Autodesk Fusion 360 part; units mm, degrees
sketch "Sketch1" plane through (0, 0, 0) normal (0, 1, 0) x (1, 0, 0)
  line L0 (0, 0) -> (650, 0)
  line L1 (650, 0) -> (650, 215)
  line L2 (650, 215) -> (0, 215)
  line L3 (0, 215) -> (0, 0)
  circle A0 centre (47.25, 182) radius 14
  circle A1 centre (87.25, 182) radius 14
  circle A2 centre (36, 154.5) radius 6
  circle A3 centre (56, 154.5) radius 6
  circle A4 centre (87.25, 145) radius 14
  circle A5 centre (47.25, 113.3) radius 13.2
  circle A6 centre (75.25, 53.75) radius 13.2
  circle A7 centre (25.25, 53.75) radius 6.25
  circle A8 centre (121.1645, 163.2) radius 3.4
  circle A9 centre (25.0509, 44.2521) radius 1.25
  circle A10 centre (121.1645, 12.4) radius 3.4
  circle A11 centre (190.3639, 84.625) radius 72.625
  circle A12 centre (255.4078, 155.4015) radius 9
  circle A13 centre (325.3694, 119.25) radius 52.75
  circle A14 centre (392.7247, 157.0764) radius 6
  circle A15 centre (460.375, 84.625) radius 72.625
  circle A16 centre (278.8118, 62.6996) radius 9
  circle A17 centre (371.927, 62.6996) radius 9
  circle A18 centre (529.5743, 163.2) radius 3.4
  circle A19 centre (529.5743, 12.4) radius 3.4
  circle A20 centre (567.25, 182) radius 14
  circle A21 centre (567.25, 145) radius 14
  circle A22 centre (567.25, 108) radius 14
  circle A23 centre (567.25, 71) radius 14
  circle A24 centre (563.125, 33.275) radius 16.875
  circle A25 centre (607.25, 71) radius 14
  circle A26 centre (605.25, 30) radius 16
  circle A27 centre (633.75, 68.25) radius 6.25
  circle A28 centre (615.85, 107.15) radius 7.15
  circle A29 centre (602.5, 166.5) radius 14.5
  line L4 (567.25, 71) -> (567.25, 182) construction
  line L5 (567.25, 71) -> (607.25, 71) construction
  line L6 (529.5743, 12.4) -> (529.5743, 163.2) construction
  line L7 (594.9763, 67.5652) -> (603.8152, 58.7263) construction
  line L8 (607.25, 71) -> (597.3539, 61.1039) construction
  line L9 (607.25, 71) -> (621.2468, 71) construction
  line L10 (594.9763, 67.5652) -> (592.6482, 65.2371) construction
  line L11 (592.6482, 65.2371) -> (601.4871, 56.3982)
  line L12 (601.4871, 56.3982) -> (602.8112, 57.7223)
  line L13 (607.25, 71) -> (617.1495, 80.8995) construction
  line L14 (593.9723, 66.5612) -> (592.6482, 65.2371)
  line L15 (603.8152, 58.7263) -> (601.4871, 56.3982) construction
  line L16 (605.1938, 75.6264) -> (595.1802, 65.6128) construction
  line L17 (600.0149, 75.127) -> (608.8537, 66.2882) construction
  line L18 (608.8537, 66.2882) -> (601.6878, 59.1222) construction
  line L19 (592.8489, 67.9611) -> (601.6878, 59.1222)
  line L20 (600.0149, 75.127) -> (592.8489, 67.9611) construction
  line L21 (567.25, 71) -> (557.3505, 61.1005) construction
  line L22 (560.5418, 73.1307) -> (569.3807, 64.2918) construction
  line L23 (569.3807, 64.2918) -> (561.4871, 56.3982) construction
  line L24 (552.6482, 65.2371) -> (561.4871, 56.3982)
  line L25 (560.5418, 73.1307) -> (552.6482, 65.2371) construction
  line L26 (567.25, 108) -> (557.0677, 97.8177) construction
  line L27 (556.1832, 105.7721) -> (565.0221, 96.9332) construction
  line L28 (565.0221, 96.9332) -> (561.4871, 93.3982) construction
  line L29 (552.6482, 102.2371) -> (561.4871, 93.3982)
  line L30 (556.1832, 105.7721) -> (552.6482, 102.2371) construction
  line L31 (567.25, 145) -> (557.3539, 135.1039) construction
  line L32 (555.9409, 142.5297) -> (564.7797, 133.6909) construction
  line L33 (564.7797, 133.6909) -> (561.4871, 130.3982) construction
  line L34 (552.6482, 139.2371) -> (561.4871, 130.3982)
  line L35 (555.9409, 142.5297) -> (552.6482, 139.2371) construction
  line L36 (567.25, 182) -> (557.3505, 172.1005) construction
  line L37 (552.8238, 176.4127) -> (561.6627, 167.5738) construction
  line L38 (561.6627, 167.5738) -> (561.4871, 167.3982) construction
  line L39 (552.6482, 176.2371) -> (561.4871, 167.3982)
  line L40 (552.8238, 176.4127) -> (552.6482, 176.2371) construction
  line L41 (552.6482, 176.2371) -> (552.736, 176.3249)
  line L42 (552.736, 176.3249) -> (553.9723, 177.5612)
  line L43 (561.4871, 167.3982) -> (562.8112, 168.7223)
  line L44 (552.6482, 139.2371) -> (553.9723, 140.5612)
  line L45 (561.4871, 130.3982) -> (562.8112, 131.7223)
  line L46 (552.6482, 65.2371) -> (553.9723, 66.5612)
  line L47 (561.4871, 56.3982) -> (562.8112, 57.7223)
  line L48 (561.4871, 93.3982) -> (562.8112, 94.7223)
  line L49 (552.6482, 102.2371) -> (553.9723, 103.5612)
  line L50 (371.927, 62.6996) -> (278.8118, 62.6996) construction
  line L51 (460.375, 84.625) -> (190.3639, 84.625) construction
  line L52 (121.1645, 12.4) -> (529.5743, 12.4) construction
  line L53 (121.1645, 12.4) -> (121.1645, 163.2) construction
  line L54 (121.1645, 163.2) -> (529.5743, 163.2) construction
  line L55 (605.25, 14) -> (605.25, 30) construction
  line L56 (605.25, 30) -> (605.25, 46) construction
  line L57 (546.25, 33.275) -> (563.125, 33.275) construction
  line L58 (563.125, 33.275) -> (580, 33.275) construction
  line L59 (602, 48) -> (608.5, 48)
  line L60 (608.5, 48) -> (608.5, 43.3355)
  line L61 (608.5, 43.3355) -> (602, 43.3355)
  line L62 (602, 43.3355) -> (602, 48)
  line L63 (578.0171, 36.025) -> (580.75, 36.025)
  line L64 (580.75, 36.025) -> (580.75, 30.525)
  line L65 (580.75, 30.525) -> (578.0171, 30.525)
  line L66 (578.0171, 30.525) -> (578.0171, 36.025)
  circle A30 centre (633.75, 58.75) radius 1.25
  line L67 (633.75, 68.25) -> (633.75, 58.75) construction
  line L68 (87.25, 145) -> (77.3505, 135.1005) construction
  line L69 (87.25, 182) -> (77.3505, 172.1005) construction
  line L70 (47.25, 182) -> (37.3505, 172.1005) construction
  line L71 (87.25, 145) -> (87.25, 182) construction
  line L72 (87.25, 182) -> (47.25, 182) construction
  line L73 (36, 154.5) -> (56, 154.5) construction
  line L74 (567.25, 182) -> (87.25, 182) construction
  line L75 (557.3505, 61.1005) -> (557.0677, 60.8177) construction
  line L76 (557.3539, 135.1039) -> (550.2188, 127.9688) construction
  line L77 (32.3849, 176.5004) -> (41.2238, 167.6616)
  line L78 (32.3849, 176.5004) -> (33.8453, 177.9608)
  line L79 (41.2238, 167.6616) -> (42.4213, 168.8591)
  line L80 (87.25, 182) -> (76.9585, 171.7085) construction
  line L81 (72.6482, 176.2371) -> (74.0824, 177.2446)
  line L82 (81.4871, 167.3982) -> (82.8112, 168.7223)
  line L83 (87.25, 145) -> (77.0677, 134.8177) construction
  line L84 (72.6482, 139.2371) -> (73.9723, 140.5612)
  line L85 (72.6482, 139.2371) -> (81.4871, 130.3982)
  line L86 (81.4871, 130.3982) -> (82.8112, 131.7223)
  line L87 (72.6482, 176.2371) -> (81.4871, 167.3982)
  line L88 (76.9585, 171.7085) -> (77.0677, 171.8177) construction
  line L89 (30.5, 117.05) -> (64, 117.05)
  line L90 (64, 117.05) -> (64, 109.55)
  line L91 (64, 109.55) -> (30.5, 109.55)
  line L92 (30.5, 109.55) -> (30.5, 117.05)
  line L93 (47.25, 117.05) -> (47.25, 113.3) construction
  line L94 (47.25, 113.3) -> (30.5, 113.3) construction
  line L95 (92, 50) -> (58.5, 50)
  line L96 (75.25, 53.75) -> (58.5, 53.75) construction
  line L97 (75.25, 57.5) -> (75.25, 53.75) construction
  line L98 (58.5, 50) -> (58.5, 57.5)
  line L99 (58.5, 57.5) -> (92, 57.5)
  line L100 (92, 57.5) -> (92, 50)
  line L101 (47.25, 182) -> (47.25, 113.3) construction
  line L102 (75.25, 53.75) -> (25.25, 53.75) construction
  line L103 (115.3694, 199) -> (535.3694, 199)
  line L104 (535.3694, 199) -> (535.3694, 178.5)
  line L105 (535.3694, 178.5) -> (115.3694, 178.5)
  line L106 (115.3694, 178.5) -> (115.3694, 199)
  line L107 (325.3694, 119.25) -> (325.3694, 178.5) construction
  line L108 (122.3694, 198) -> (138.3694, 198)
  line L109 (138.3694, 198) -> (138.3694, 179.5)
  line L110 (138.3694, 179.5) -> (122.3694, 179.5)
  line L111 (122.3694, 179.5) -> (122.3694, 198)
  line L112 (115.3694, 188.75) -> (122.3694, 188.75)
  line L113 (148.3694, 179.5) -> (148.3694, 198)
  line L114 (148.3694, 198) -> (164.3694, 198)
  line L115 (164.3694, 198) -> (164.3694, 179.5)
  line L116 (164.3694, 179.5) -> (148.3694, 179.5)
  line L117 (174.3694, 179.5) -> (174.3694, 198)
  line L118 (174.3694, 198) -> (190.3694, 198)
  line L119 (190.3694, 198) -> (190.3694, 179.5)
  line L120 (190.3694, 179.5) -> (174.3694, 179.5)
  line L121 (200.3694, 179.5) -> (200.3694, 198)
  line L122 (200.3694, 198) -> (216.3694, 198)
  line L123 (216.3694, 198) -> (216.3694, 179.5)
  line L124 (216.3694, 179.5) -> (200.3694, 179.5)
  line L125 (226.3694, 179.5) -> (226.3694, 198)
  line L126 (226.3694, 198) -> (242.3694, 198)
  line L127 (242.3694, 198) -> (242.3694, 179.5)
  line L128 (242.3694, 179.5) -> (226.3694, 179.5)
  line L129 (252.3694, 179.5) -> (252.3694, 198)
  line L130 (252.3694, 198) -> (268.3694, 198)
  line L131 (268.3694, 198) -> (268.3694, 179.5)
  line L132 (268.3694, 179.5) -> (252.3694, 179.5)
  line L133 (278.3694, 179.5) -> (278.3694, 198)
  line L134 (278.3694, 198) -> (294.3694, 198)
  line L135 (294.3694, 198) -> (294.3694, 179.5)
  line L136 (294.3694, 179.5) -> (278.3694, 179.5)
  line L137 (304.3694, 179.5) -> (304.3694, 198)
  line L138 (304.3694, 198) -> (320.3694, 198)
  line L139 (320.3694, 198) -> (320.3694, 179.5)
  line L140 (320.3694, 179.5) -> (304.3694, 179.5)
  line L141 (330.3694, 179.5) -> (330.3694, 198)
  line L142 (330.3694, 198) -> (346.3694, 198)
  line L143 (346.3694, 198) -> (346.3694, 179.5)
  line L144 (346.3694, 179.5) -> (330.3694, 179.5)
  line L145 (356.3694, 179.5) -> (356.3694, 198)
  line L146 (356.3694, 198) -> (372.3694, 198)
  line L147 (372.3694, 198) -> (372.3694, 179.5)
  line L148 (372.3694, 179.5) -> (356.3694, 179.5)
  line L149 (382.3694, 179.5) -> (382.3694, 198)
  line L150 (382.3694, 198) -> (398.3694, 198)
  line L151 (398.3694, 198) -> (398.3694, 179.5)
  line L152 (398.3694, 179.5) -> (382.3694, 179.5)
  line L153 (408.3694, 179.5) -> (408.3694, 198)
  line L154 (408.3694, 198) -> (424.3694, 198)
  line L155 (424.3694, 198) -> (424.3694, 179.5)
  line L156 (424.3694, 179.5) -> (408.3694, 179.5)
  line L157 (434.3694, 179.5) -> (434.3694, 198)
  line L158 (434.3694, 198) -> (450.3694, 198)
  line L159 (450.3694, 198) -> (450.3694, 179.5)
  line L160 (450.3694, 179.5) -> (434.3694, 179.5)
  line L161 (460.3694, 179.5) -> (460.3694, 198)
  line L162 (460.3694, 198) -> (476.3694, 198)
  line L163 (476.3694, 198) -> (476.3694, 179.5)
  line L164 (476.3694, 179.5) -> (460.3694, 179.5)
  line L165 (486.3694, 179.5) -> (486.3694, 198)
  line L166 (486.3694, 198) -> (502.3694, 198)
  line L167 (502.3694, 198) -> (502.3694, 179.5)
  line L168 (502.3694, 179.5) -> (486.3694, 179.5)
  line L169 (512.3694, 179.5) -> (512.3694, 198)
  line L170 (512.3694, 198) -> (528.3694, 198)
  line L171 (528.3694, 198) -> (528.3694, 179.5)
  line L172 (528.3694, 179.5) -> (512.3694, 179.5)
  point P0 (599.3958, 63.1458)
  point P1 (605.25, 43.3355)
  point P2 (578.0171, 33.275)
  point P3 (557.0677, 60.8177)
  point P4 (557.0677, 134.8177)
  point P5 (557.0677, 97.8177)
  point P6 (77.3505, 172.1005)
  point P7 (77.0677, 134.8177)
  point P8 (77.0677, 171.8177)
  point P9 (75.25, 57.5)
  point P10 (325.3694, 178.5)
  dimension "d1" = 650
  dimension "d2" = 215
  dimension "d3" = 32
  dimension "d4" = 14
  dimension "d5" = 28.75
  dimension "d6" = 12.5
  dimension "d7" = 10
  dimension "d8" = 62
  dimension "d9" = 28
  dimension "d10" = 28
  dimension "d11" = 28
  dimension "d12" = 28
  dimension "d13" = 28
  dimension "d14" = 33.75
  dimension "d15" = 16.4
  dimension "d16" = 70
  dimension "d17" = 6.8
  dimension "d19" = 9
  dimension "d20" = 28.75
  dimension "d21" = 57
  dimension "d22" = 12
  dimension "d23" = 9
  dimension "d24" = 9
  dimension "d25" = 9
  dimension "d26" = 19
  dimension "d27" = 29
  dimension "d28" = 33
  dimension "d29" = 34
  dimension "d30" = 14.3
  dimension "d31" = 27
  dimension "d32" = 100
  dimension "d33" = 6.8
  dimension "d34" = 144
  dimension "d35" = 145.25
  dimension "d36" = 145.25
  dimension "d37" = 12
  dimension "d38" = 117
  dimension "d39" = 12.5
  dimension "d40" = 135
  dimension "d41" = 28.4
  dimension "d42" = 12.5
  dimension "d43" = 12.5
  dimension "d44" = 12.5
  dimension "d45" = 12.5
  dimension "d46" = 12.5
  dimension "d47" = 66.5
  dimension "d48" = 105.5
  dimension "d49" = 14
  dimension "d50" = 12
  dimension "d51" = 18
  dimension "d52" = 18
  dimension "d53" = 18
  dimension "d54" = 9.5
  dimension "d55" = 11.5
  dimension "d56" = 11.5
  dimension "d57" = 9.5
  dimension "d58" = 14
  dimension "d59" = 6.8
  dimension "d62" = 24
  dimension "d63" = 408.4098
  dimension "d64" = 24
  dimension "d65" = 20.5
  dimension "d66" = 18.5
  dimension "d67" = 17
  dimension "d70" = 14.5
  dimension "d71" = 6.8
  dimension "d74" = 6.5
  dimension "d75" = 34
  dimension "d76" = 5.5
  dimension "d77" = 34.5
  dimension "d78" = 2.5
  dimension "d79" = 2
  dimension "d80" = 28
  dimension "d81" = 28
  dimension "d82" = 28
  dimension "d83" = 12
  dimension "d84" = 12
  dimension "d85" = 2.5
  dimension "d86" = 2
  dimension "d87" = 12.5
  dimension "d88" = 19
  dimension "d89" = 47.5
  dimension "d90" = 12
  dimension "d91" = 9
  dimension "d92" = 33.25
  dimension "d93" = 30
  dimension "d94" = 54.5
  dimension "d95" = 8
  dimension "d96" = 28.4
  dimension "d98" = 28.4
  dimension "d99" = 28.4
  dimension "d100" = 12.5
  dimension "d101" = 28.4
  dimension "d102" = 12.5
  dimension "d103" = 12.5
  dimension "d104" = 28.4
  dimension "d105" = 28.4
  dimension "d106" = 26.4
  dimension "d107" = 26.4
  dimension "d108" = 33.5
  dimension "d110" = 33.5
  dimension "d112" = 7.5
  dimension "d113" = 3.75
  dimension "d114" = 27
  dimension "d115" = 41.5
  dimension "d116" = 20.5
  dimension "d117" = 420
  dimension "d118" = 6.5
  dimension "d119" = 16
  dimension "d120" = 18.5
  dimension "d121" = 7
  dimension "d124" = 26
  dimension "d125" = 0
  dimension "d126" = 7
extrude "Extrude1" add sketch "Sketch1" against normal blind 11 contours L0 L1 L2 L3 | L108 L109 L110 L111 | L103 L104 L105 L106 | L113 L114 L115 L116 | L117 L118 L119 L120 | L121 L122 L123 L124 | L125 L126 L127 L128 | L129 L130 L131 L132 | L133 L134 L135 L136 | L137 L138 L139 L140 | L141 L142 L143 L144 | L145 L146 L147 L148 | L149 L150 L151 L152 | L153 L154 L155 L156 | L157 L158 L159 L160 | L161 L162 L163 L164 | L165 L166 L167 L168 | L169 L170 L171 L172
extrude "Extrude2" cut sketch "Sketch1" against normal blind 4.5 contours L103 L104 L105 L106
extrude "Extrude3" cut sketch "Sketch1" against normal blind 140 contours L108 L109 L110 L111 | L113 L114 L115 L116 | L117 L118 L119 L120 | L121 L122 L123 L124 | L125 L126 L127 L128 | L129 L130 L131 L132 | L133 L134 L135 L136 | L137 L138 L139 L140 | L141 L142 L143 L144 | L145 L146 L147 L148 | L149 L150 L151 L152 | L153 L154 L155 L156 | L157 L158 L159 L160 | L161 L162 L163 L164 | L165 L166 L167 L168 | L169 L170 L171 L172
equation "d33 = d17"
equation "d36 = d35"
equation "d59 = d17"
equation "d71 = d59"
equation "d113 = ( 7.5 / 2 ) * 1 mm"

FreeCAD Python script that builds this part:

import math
import FreeCAD as App
import Part
import Sketcher
Q = App.Units.Quantity


def add_polygon(sketch, points):
    """Adds a closed chain of lines whose ends are joined by coincident constraints."""
    first, n = sketch.GeometryCount, len(points)
    for a, b in zip(points, points[1:] + points[:1]):
        sketch.addGeometry(Part.LineSegment(App.Vector(*a, 0), App.Vector(*b, 0)), False)
    for i in range(n):
        sketch.addConstraint(Sketcher.Constraint("Coincident", first + i, 2, first + (i + 1) % n, 1))

doc = App.newDocument("Part")
params = doc.addObject("Spreadsheet::Sheet", "Params")
for row, (alias, value) in enumerate([
    ("sketch1_diameter", "18 mm"),
    ("sketch1_diameter2", "12 mm"),
    ("sketch1_diameter3", "29 mm"),
    ("sketch1_radius", "16 mm"),
    ("sketch1_radius2", "14 mm"),
    ("pad1_length", "11 mm"),
    ("sketch2_width", "420 mm"),
    ("sketch2_width2", "16 mm"),
    ("sketch2_height", "20.5 mm"),
    ("sketch2_height2", "18.5 mm"),
    ("pocket1_length", "4.5 mm"),
    ("sketch3_width", "16 mm"),
    ("sketch3_height", "18.5 mm"),
    ("pocket2_length", "140 mm"),
], start=1):
    params.set(f"A{row}", alias)
    params.set(f"B{row}", "=" + value)
    params.setAlias(f"B{row}", alias)

body = doc.addObject("PartDesign::Body", "Body")

sketch1 = body.newObject("Sketcher::SketchObject", "Sketch")
sketch1.AttachmentSupport = (doc.getObject("XZ_Plane"), [""])
sketch1.MapMode = "FlatFace"
add_polygon(sketch1, [(0, -215), (0, 0), (650, 0), (650, -215)])
sketch1.addGeometry(Part.Circle(App.Vector(121.2, -12.4, 0), App.Vector(0, 0, 1), 3.4), False)
sketch1.addGeometry(Part.Circle(App.Vector(25.1, -44.3, 0), App.Vector(0, 0, 1), 1.2), False)
sketch1.addGeometry(Part.Circle(App.Vector(25.2, -53.8, 0), App.Vector(0, 0, 1), 6.2), False)
sketch1.addGeometry(Part.ArcOfCircle(Part.Circle(App.Vector(75.2, -53.8, 0), App.Vector(0, 0, 1), 13.2), math.radians(-163), math.radians(-17)), False)
sketch1.addGeometry(Part.LineSegment(App.Vector(87.9, -57.5, 0), App.Vector(92, -57.5, 0)), False)
sketch1.addGeometry(Part.LineSegment(App.Vector(92, -57.5, 0), App.Vector(92, -50, 0)), False)
sketch1.addGeometry(Part.LineSegment(App.Vector(92, -50, 0), App.Vector(87.9, -50, 0)), False)
sketch1.addGeometry(Part.ArcOfCircle(Part.Circle(App.Vector(75.2, -53.8, 0), App.Vector(0, 0, 1), 13.2), math.radians(17), math.radians(163)), False)
sketch1.addGeometry(Part.LineSegment(App.Vector(62.6, -50, 0), App.Vector(58.5, -50, 0)), False)
sketch1.addGeometry(Part.LineSegment(App.Vector(58.5, -50, 0), App.Vector(58.5, -57.5, 0)), False)
sketch1.addGeometry(Part.LineSegment(App.Vector(58.5, -57.5, 0), App.Vector(62.6, -57.5, 0)), False)
sketch1.addGeometry(Part.Circle(App.Vector(278.8, -62.7, 0), App.Vector(0, 0, 1), 9), False)
sketch1.addGeometry(Part.Circle(App.Vector(190.4, -84.6, 0), App.Vector(0, 0, 1), 72.6), False)
sketch1.addGeometry(Part.Circle(App.Vector(529.6, -12.4, 0), App.Vector(0, 0, 1), 3.4), False)
sketch1.addGeometry(Part.ArcOfCircle(Part.Circle(App.Vector(563.1, -33.3, 0), App.Vector(0, 0, 1), 16.9), math.radians(9), math.radians(351)), False)
sketch1.addGeometry(Part.LineSegment(App.Vector(579.8, -36, 0), App.Vector(580.8, -36, 0)), False)
sketch1.addGeometry(Part.LineSegment(App.Vector(580.8, -36, 0), App.Vector(580.8, -30.5, 0)), False)
sketch1.addGeometry(Part.LineSegment(App.Vector(580.8, -30.5, 0), App.Vector(579.8, -30.5, 0)), False)
sketch1.addGeometry(Part.ArcOfCircle(Part.Circle(App.Vector(605.2, -30, 0), App.Vector(0, 0, 1), 16), math.radians(-78), math.radians(258)), False)
sketch1.addGeometry(Part.LineSegment(App.Vector(602, -45.7, 0), App.Vector(602, -48, 0)), False)
sketch1.addGeometry(Part.LineSegment(App.Vector(602, -48, 0), App.Vector(608.5, -48, 0)), False)
sketch1.addGeometry(Part.LineSegment(App.Vector(608.5, -48, 0), App.Vector(608.5, -45.7, 0)), False)
sketch1.addGeometry(Part.Circle(App.Vector(371.9, -62.7, 0), App.Vector(0, 0, 1), 9), False)
sketch1.addGeometry(Part.Circle(App.Vector(460.4, -84.6, 0), App.Vector(0, 0, 1), 72.6), False)
sketch1.addGeometry(Part.ArcOfCircle(Part.Circle(App.Vector(567.2, -71, 0), App.Vector(0, 0, 1), 14), math.radians(162), math.radians(468)), False)
sketch1.addGeometry(Part.LineSegment(App.Vector(562.8, -57.7, 0), App.Vector(561.5, -56.4, 0)), False)
sketch1.addGeometry(Part.LineSegment(App.Vector(561.5, -56.4, 0), App.Vector(552.6, -65.2, 0)), False)
sketch1.addGeometry(Part.LineSegment(App.Vector(552.6, -65.2, 0), App.Vector(554, -66.6, 0)), False)
sketch1.addGeometry(Part.Circle(App.Vector(633.8, -58.8, 0), App.Vector(0, 0, 1), 1.2), False)
sketch1.addGeometry(Part.LineSegment(App.Vector(592.6, -65.2, 0), App.Vector(594, -66.6, 0)), False)
sketch1.addGeometry(Part.ArcOfCircle(Part.Circle(App.Vector(607.2, -71, 0), App.Vector(0, 0, 1), 14), math.radians(162), math.radians(468)), False)
sketch1.addGeometry(Part.LineSegment(App.Vector(602.8, -57.7, 0), App.Vector(601.5, -56.4, 0)), False)
sketch1.addGeometry(Part.LineSegment(App.Vector(601.5, -56.4, 0), App.Vector(592.6, -65.2, 0)), False)
sketch1.addGeometry(Part.Circle(App.Vector(633.8, -68.2, 0), App.Vector(0, 0, 1), 6.2), False)
sketch1.addGeometry(Part.Circle(App.Vector(615.9, -107.2, 0), App.Vector(0, 0, 1), 7.2), False)
sketch1.addGeometry(Part.ArcOfCircle(Part.Circle(App.Vector(47.2, -113.3, 0), App.Vector(0, 0, 1), 13.2), math.radians(-163), math.radians(-17)), False)
sketch1.addGeometry(Part.LineSegment(App.Vector(59.9, -117, 0), App.Vector(64, -117, 0)), False)
sketch1.addGeometry(Part.LineSegment(App.Vector(64, -117, 0), App.Vector(64, -109.5, 0)), False)
sketch1.addGeometry(Part.LineSegment(App.Vector(64, -109.5, 0), App.Vector(59.9, -109.5, 0)), False)
sketch1.addGeometry(Part.ArcOfCircle(Part.Circle(App.Vector(47.2, -113.3, 0), App.Vector(0, 0, 1), 13.2), math.radians(17), math.radians(163)), False)
sketch1.addGeometry(Part.LineSegment(App.Vector(34.6, -109.5, 0), App.Vector(30.5, -109.5, 0)), False)
sketch1.addGeometry(Part.LineSegment(App.Vector(30.5, -109.5, 0), App.Vector(30.5, -117, 0)), False)
sketch1.addGeometry(Part.LineSegment(App.Vector(30.5, -117, 0), App.Vector(34.6, -117, 0)), False)
sketch1.addGeometry(Part.Circle(App.Vector(36, -154.5, 0), App.Vector(0, 0, 1), 6), False)
sketch1.addGeometry(Part.Circle(App.Vector(56, -154.5, 0), App.Vector(0, 0, 1), 6), False)
sketch1.addGeometry(Part.ArcOfCircle(Part.Circle(App.Vector(87.2, -145, 0), App.Vector(0, 0, 1), 14), math.radians(162), math.radians(468)), False)
sketch1.addGeometry(Part.LineSegment(App.Vector(82.8, -131.7, 0), App.Vector(81.5, -130.4, 0)), False)
sketch1.addGeometry(Part.LineSegment(App.Vector(81.5, -130.4, 0), App.Vector(72.6, -139.2, 0)), False)
sketch1.addGeometry(Part.LineSegment(App.Vector(72.6, -139.2, 0), App.Vector(74, -140.6, 0)), False)
sketch1.addGeometry(Part.Circle(App.Vector(255.4, -155.4, 0), App.Vector(0, 0, 1), 9), False)
sketch1.addGeometry(Part.ArcOfCircle(Part.Circle(App.Vector(47.2, -182, 0), App.Vector(0, 0, 1), 14), math.radians(163), math.radians(470)), False)
sketch1.addGeometry(Part.LineSegment(App.Vector(42.4, -168.9, 0), App.Vector(41.2, -167.7, 0)), False)
sketch1.addGeometry(Part.LineSegment(App.Vector(41.2, -167.7, 0), App.Vector(32.4, -176.5, 0)), False)
sketch1.addGeometry(Part.LineSegment(App.Vector(32.4, -176.5, 0), App.Vector(33.8, -178, 0)), False)
sketch1.addGeometry(Part.Circle(App.Vector(121.2, -163.2, 0), App.Vector(0, 0, 1), 3.4), False)
sketch1.addGeometry(Part.ArcOfCircle(Part.Circle(App.Vector(87.2, -182, 0), App.Vector(0, 0, 1), 14), math.radians(160), math.radians(468)), False)
sketch1.addGeometry(Part.LineSegment(App.Vector(82.8, -168.7, 0), App.Vector(81.5, -167.4, 0)), False)
sketch1.addGeometry(Part.LineSegment(App.Vector(81.5, -167.4, 0), App.Vector(72.6, -176.2, 0)), False)
sketch1.addGeometry(Part.LineSegment(App.Vector(72.6, -176.2, 0), App.Vector(74.1, -177.2, 0)), False)
sketch1.addGeometry(Part.Circle(App.Vector(325.4, -119.2, 0), App.Vector(0, 0, 1), 52.8), False)
sketch1.addGeometry(Part.Circle(App.Vector(392.7, -157.1, 0), App.Vector(0, 0, 1), 6), False)
sketch1.addGeometry(Part.ArcOfCircle(Part.Circle(App.Vector(567.2, -108, 0), App.Vector(0, 0, 1), 14), math.radians(162), math.radians(468)), False)
sketch1.addGeometry(Part.LineSegment(App.Vector(562.8, -94.7, 0), App.Vector(561.5, -93.4, 0)), False)
sketch1.addGeometry(Part.LineSegment(App.Vector(561.5, -93.4, 0), App.Vector(552.6, -102.2, 0)), False)
sketch1.addGeometry(Part.LineSegment(App.Vector(552.6, -102.2, 0), App.Vector(554, -103.6, 0)), False)
sketch1.addGeometry(Part.ArcOfCircle(Part.Circle(App.Vector(567.2, -145, 0), App.Vector(0, 0, 1), 14), math.radians(162), math.radians(468)), False)
sketch1.addGeometry(Part.LineSegment(App.Vector(562.8, -131.7, 0), App.Vector(561.5, -130.4, 0)), False)
sketch1.addGeometry(Part.LineSegment(App.Vector(561.5, -130.4, 0), App.Vector(552.6, -139.2, 0)), False)
sketch1.addGeometry(Part.LineSegment(App.Vector(552.6, -139.2, 0), App.Vector(554, -140.6, 0)), False)
sketch1.addGeometry(Part.Circle(App.Vector(529.6, -163.2, 0), App.Vector(0, 0, 1), 3.4), False)
sketch1.addGeometry(Part.ArcOfCircle(Part.Circle(App.Vector(567.2, -182, 0), App.Vector(0, 0, 1), 14), math.radians(162), math.radians(468)), False)
sketch1.addGeometry(Part.LineSegment(App.Vector(562.8, -168.7, 0), App.Vector(561.5, -167.4, 0)), False)
sketch1.addGeometry(Part.LineSegment(App.Vector(561.5, -167.4, 0), App.Vector(552.6, -176.2, 0)), False)
sketch1.addGeometry(Part.LineSegment(App.Vector(552.6, -176.2, 0), App.Vector(554, -177.6, 0)), False)
sketch1.addGeometry(Part.Circle(App.Vector(602.5, -166.5, 0), App.Vector(0, 0, 1), 14.5), False)
sketch1.addConstraint([
    Sketcher.Constraint("Coincident", 7, 2, 8, 1),
    Sketcher.Constraint("Coincident", 8, 2, 9, 1),
    Sketcher.Constraint("Coincident", 9, 2, 10, 1),
    Sketcher.Constraint("Coincident", 10, 2, 11, 1),
    Sketcher.Constraint("Coincident", 11, 2, 12, 1),
    Sketcher.Constraint("Coincident", 12, 2, 13, 1),
    Sketcher.Constraint("Coincident", 13, 2, 14, 1),
    Sketcher.Constraint("Coincident", 14, 2, 7, 1),
    Sketcher.Constraint("Coincident", 18, 2, 19, 1),
    Sketcher.Constraint("Coincident", 19, 2, 20, 1),
    Sketcher.Constraint("Coincident", 20, 2, 21, 1),
    Sketcher.Constraint("Coincident", 21, 2, 18, 1),
    Sketcher.Constraint("Coincident", 22, 2, 23, 1),
    Sketcher.Constraint("Coincident", 23, 2, 24, 1),
    Sketcher.Constraint("Coincident", 24, 2, 25, 1),
    Sketcher.Constraint("Coincident", 25, 2, 22, 1),
    Sketcher.Constraint("Coincident", 28, 2, 29, 1),
    Sketcher.Constraint("Coincident", 29, 2, 30, 1),
    Sketcher.Constraint("Coincident", 30, 2, 31, 1),
    Sketcher.Constraint("Coincident", 31, 2, 28, 1),
    Sketcher.Constraint("Coincident", 33, 2, 34, 1),
    Sketcher.Constraint("Coincident", 34, 2, 35, 1),
    Sketcher.Constraint("Coincident", 35, 2, 36, 1),
    Sketcher.Constraint("Coincident", 36, 2, 33, 1),
    Sketcher.Constraint("Coincident", 39, 2, 40, 1),
    Sketcher.Constraint("Coincident", 40, 2, 41, 1),
    Sketcher.Constraint("Coincident", 41, 2, 42, 1),
    Sketcher.Constraint("Coincident", 42, 2, 43, 1),
    Sketcher.Constraint("Coincident", 43, 2, 44, 1),
    Sketcher.Constraint("Coincident", 44, 2, 45, 1),
    Sketcher.Constraint("Coincident", 45, 2, 46, 1),
    Sketcher.Constraint("Coincident", 46, 2, 39, 1),
    Sketcher.Constraint("Coincident", 49, 2, 50, 1),
    Sketcher.Constraint("Coincident", 50, 2, 51, 1),
    Sketcher.Constraint("Coincident", 51, 2, 52, 1),
    Sketcher.Constraint("Coincident", 52, 2, 49, 1),
    Sketcher.Constraint("Coincident", 54, 2, 55, 1),
    Sketcher.Constraint("Coincident", 55, 2, 56, 1),
    Sketcher.Constraint("Coincident", 56, 2, 57, 1),
    Sketcher.Constraint("Coincident", 57, 2, 54, 1),
    Sketcher.Constraint("Coincident", 59, 2, 60, 1),
    Sketcher.Constraint("Coincident", 60, 2, 61, 1),
    Sketcher.Constraint("Coincident", 61, 2, 62, 1),
    Sketcher.Constraint("Coincident", 62, 2, 59, 1),
    Sketcher.Constraint("Coincident", 65, 2, 66, 1),
    Sketcher.Constraint("Coincident", 66, 2, 67, 1),
    Sketcher.Constraint("Coincident", 67, 2, 68, 1),
    Sketcher.Constraint("Coincident", 68, 2, 65, 1),
    Sketcher.Constraint("Coincident", 69, 2, 70, 1),
    Sketcher.Constraint("Coincident", 70, 2, 71, 1),
    Sketcher.Constraint("Coincident", 71, 2, 72, 1),
    Sketcher.Constraint("Coincident", 72, 2, 69, 1),
    Sketcher.Constraint("Coincident", 74, 2, 75, 1),
    Sketcher.Constraint("Coincident", 75, 2, 76, 1),
    Sketcher.Constraint("Coincident", 76, 2, 77, 1),
    Sketcher.Constraint("Coincident", 77, 2, 74, 1),
    Sketcher.Constraint("Vertical", 0),
    Sketcher.Constraint("Horizontal", 1),
    Sketcher.Constraint("Vertical", 2),
    Sketcher.Constraint("Horizontal", 3),
    Sketcher.Constraint("Horizontal", 8),
    Sketcher.Constraint("Vertical", 9),
    Sketcher.Constraint("Horizontal", 10),
    Sketcher.Constraint("Horizontal", 12),
    Sketcher.Constraint("Vertical", 13),
    Sketcher.Constraint("Horizontal", 14),
    Sketcher.Constraint("Horizontal", 19),
    Sketcher.Constraint("Vertical", 20),
    Sketcher.Constraint("Horizontal", 21),
    Sketcher.Constraint("Vertical", 23),
    Sketcher.Constraint("Horizontal", 24),
    Sketcher.Constraint("Vertical", 25),
    Sketcher.Constraint("Horizontal", 40),
    Sketcher.Constraint("Vertical", 41),
    Sketcher.Constraint("Horizontal", 42),
    Sketcher.Constraint("Horizontal", 44),
    Sketcher.Constraint("Vertical", 45),
    Sketcher.Constraint("Horizontal", 46),
    Sketcher.Constraint("Coincident", 0, 2, -1, 1),
    Sketcher.Constraint("Coincident", 11, 3, 7, 3),
    Sketcher.Constraint("Coincident", 43, 3, 39, 3),
    Sketcher.Constraint("Equal", 7, 11),
    Sketcher.Constraint("Equal", 4, 17),
    Sketcher.Constraint("Equal", 15, 26),
    Sketcher.Constraint("Equal", 16, 27),
    Sketcher.Constraint("Equal", 5, 32),
    Sketcher.Constraint("Equal", 28, 34),
    Sketcher.Constraint("Equal", 6, 37),
    Sketcher.Constraint("Equal", 11, 39),
    Sketcher.Constraint("Equal", 39, 43),
    Sketcher.Constraint("Equal", 47, 48),
    Sketcher.Constraint("Equal", 34, 49),
    Sketcher.Constraint("Equal", 26, 53),
    Sketcher.Constraint("Equal", 49, 54),
    Sketcher.Constraint("Equal", 17, 58),
    Sketcher.Constraint("Equal", 54, 59),
    Sketcher.Constraint("Equal", 48, 64),
    Sketcher.Constraint("Equal", 59, 65),
    Sketcher.Constraint("Equal", 65, 69),
    Sketcher.Constraint("Equal", 58, 73),
    Sketcher.Constraint("Equal", 69, 74),
    Sketcher.Constraint("Perpendicular", 29, 30),
    Sketcher.Constraint("Perpendicular", 30, 31),
    Sketcher.Constraint("Parallel", 31, 33),
    Sketcher.Constraint("Parallel", 33, 35),
    Sketcher.Constraint("Perpendicular", 35, 36),
    Sketcher.Constraint("Perpendicular", 36, 50),
    Sketcher.Constraint("Perpendicular", 50, 51),
    Sketcher.Constraint("Perpendicular", 51, 52),
    Sketcher.Constraint("Parallel", 52, 55),
    Sketcher.Constraint("Perpendicular", 55, 56),
    Sketcher.Constraint("Perpendicular", 56, 57),
    Sketcher.Constraint("Parallel", 57, 60),
    Sketcher.Constraint("Perpendicular", 60, 61),
    Sketcher.Constraint("Perpendicular", 61, 66),
    Sketcher.Constraint("Perpendicular", 66, 67),
    Sketcher.Constraint("Perpendicular", 67, 68),
    Sketcher.Constraint("Parallel", 68, 70),
    Sketcher.Constraint("Perpendicular", 70, 71),
    Sketcher.Constraint("Perpendicular", 71, 72),
    Sketcher.Constraint("Parallel", 72, 75),
    Sketcher.Constraint("Perpendicular", 75, 76),
    Sketcher.Constraint("Perpendicular", 76, 77),
    Sketcher.Constraint("Horizontal", 6, 3, 7, 3),
    Sketcher.Constraint("Horizontal", 4, 3, 17, 3),
    Sketcher.Constraint("Horizontal", 15, 3, 26, 3),
    Sketcher.Constraint("Horizontal", 16, 3, 27, 3),
    Sketcher.Constraint("Horizontal", 28, 3, 34, 3),
    Sketcher.Constraint("Horizontal", 47, 3, 48, 3),
    Sketcher.Constraint("Horizontal", 54, 3, 59, 3),
    Sketcher.Constraint("Horizontal", 49, 3, 69, 3),
    Sketcher.Constraint("Horizontal", 58, 3, 73, 3),
    Sketcher.Constraint("Horizontal", 59, 3, 74, 3),
    Sketcher.Constraint("Horizontal", 10, 2, 11, 2),
    Sketcher.Constraint("Horizontal", 8, 2, 13, 2),
    Sketcher.Constraint("Horizontal", 22, 2, 25, 2),
    Sketcher.Constraint("Horizontal", 31, 2, 33, 2),
    Sketcher.Constraint("Horizontal", 28, 2, 34, 2),
    Sketcher.Constraint("Horizontal", 29, 2, 35, 2),
    Sketcher.Constraint("Horizontal", 42, 2, 43, 2),
    Sketcher.Constraint("Horizontal", 40, 2, 45, 2),
    Sketcher.Constraint("Horizontal", 49, 2, 69, 2),
    Sketcher.Constraint("Horizontal", 50, 2, 70, 2),
    Sketcher.Constraint("Horizontal", 51, 2, 71, 2),
    Sketcher.Constraint("Horizontal", 59, 2, 74, 2),
    Sketcher.Constraint("Horizontal", 60, 2, 75, 2),
    Sketcher.Constraint("Horizontal", 61, 2, 76, 2),
    Sketcher.Constraint("Vertical", 32, 3, 37, 3),
    Sketcher.Constraint("Vertical", 43, 3, 54, 3),
    Sketcher.Constraint("Vertical", 4, 3, 58, 3),
    Sketcher.Constraint("Vertical", 49, 3, 59, 3),
    Sketcher.Constraint("Vertical", 28, 3, 65, 3),
    Sketcher.Constraint("Vertical", 65, 3, 69, 3),
    Sketcher.Constraint("Vertical", 17, 3, 73, 3),
    Sketcher.Constraint("Vertical", 69, 3, 74, 3),
    Sketcher.Constraint("Vertical", 7, 2, 10, 2),
    Sketcher.Constraint("Vertical", 18, 2, 21, 2),
    Sketcher.Constraint("Vertical", 39, 2, 42, 2),
    Sketcher.Constraint("Vertical", 49, 2, 59, 2),
    Sketcher.Constraint("Vertical", 50, 2, 60, 2),
    Sketcher.Constraint("Vertical", 51, 2, 61, 2),
    Sketcher.Constraint("Vertical", 28, 2, 65, 2),
    Sketcher.Constraint("Vertical", 29, 2, 66, 2),
    Sketcher.Constraint("Vertical", 30, 2, 67, 2),
    Sketcher.Constraint("Vertical", 65, 2, 69, 2),
    Sketcher.Constraint("Vertical", 66, 2, 70, 2),
    Sketcher.Constraint("Vertical", 67, 2, 71, 2),
    Sketcher.Constraint("Equal", 10, 12),
    Sketcher.Constraint("Equal", 14, 40),
    Sketcher.Constraint("Equal", 42, 44),
    Sketcher.Constraint("Equal", 13, 41),
    Sketcher.Constraint("Equal", 29, 31),
    Sketcher.Constraint("Equal", 51, 56),
    Sketcher.Constraint("Diameter", 15, Q("18 mm")),
    Sketcher.Constraint("Diameter", 47, Q("12 mm")),
    Sketcher.Constraint("Diameter", 78, Q("29 mm")),
    Sketcher.Constraint("Radius", 22, Q("16 mm")),
    Sketcher.Constraint("Radius", 28, Q("14 mm")),
    Sketcher.Constraint("Diameter", 4, Q("6.8 mm")),
    Sketcher.Constraint("Diameter", 5, Q("2.5 mm")),
    Sketcher.Constraint("Diameter", 6, Q("12.5 mm")),
    Sketcher.Constraint("Diameter", 38, Q("14.3 mm")),
    Sketcher.Constraint("Diameter", 63, Q("105.5 mm")),
    Sketcher.Constraint("Radius", 7, Q("13.2 mm")),
    Sketcher.Constraint("Diameter", 16, Q("145.25 mm")),
    Sketcher.Constraint("DistanceX", 1, 1, 1, 2, Q("650 mm")),
    Sketcher.Constraint("DistanceY", 0, 1, 0, 2, Q("215 mm")),
    Sketcher.Constraint("Angle", 29, Q("135 deg")),
    Sketcher.Constraint("DistanceX", 24, 1, 24, 2, Q("6.5 mm")),
    Sketcher.Constraint("DistanceY", 9, 1, 9, 2, Q("7.5 mm")),
    Sketcher.Constraint("DistanceY", 20, 1, 20, 2, Q("5.5 mm")),
    Sketcher.Constraint("DistanceY", 22, 3, -1, 1, Q("30 mm")),
    Sketcher.Constraint("Radius", 18, Q("16.875 mm")),
    Sketcher.Constraint("Distance", 30, Q("12.5 mm")),
    Sketcher.Constraint("DistanceY", 28, 3, -1, 1, Q("71 mm")),
    Sketcher.Constraint("DistanceX", -1, 1, 47, 3, Q("36 mm")),
    Sketcher.Constraint("DistanceX", -1, 1, 48, 3, Q("56 mm")),
    Sketcher.Constraint("DistanceY", 49, 3, -1, 1, Q("145 mm")),
    Sketcher.Constraint("DistanceY", 54, 3, -1, 1, Q("182 mm")),
    Sketcher.Constraint("DistanceY", 65, 3, -1, 1, Q("108 mm")),
    Sketcher.Constraint("DistanceX", -1, 1, 8, 2, Q("92 mm")),
    Sketcher.Constraint("DistanceY", 9, 2, -1, 1, Q("50 mm")),
    Sketcher.Constraint("DistanceX", -1, 1, 22, 2, Q("602 mm")),
    Sketcher.Constraint("DistanceY", 23, 2, -1, 1, Q("48 mm")),
    Sketcher.Constraint("DistanceX", -1, 1, 40, 2, Q("64 mm")),
    Sketcher.Constraint("DistanceY", 4, 3, -1, 1, Q("12.4 mm")),
    Sketcher.Constraint("DistanceY", 39, 3, -1, 1, Q("113.3 mm")),
    Sketcher.Constraint("DistanceY", 47, 3, -1, 1, Q("154.5 mm")),
    Sketcher.Constraint("DistanceY", 58, 3, -1, 1, Q("163.2 mm")),
    Sketcher.Constraint("DistanceX", -1, 1, 78, 3, Q("602.5 mm")),
    Sketcher.Constraint("DistanceY", 78, 3, -1, 1, Q("166.5 mm")),
    Sketcher.Constraint("DistanceX", -1, 1, 12, 2, Q("58.5 mm")),
    Sketcher.Constraint("DistanceX", -1, 1, 6, 3, Q("25.25 mm")),
    Sketcher.Constraint("DistanceX", -1, 1, 28, 3, Q("567.25 mm")),
    Sketcher.Constraint("DistanceX", -1, 1, 32, 3, Q("633.75 mm")),
    Sketcher.Constraint("DistanceY", 32, 3, -1, 1, Q("58.75 mm")),
    Sketcher.Constraint("DistanceX", -1, 1, 34, 3, Q("607.25 mm")),
    Sketcher.Constraint("DistanceY", 37, 3, -1, 1, Q("68.25 mm")),
    Sketcher.Constraint("DistanceX", -1, 1, 38, 3, Q("615.85 mm")),
    Sketcher.Constraint("DistanceY", 38, 3, -1, 1, Q("107.15 mm")),
    Sketcher.Constraint("DistanceX", -1, 1, 49, 3, Q("87.25 mm")),
    Sketcher.Constraint("DistanceY", 63, 3, -1, 1, Q("119.25 mm")),
    Sketcher.Constraint("DistanceX", -1, 1, 19, 2, Q("580.75 mm")),
    Sketcher.Constraint("DistanceX", 19, 1, 19, 2, Q("0.9756 mm")),
    Sketcher.Constraint("DistanceX", -1, 1, 5, 3, Q("25.051 mm")),
    Sketcher.Constraint("DistanceY", 5, 3, -1, 1, Q("44.252 mm")),
    Sketcher.Constraint("DistanceX", -1, 1, 16, 3, Q("190.364 mm")),
    Sketcher.Constraint("DistanceY", 16, 3, -1, 1, Q("84.625 mm")),
    Sketcher.Constraint("DistanceY", 18, 3, -1, 1, Q("33.275 mm")),
    Sketcher.Constraint("DistanceX", -1, 1, 26, 3, Q("371.927 mm")),
    Sketcher.Constraint("DistanceX", -1, 1, 27, 3, Q("460.375 mm")),
    Sketcher.Constraint("DistanceX", -1, 1, 29, 2, Q("561.487 mm")),
    Sketcher.Constraint("DistanceY", 54, 2, -1, 1, Q("168.859 mm")),
    Sketcher.Constraint("DistanceX", -1, 1, 56, 2, Q("32.385 mm")),
    Sketcher.Constraint("Distance", 62, Q("1.7527 mm")),
    Sketcher.Constraint("DistanceX", -1, 1, 4, 3, Q("121.1645 mm")),
    Sketcher.Constraint("DistanceX", -1, 1, 15, 3, Q("278.8118 mm")),
    Sketcher.Constraint("DistanceY", 15, 3, -1, 1, Q("62.6996 mm")),
    Sketcher.Constraint("DistanceX", -1, 1, 17, 3, Q("529.5743 mm")),
    Sketcher.Constraint("DistanceX", -1, 1, 53, 3, Q("255.4078 mm")),
    Sketcher.Constraint("DistanceY", 53, 3, -1, 1, Q("155.4015 mm")),
    Sketcher.Constraint("DistanceX", -1, 1, 63, 3, Q("325.3694 mm")),
    Sketcher.Constraint("DistanceX", -1, 1, 64, 3, Q("392.7247 mm")),
    Sketcher.Constraint("DistanceY", 64, 3, -1, 1, Q("157.0764 mm")),
])
sketch1.setExpression("Constraints[177]", "Params.sketch1_diameter")
sketch1.setExpression("Constraints[178]", "Params.sketch1_diameter2")
sketch1.setExpression("Constraints[179]", "Params.sketch1_diameter3")
sketch1.setExpression("Constraints[180]", "Params.sketch1_radius")
sketch1.setExpression("Constraints[181]", "Params.sketch1_radius2")
pad1 = body.newObject("PartDesign::Pad", "Pad")
pad1.Profile = sketch1
pad1.setExpression("Length", "Params.pad1_length")

sketch2 = body.newObject("Sketcher::SketchObject", "Sketch001")
sketch2.AttachmentSupport = (doc.getObject("XZ_Plane"), [""])
sketch2.MapMode = "FlatFace"
add_polygon(sketch2, [(535, -199), (115, -199), (115, -189), (115, -178), (535, -178)])
add_polygon(sketch2, [(122, -180), (122, -189), (122, -198), (138, -198), (138, -180)])
add_polygon(sketch2, [(164, -180), (148, -180), (148, -198), (164, -198)])
add_polygon(sketch2, [(190, -180), (174, -180), (174, -198), (190, -198)])
add_polygon(sketch2, [(216, -180), (200, -180), (200, -198), (216, -198)])
add_polygon(sketch2, [(242, -180), (226, -180), (226, -198), (242, -198)])
add_polygon(sketch2, [(268, -180), (252, -180), (252, -198), (268, -198)])
add_polygon(sketch2, [(294, -180), (278, -180), (278, -198), (294, -198)])
add_polygon(sketch2, [(320, -180), (304, -180), (304, -198), (320, -198)])
add_polygon(sketch2, [(346, -180), (330, -180), (330, -198), (346, -198)])
add_polygon(sketch2, [(372, -180), (356, -180), (356, -198), (372, -198)])
add_polygon(sketch2, [(398, -180), (382, -180), (382, -198), (398, -198)])
add_polygon(sketch2, [(424, -180), (408, -180), (408, -198), (424, -198)])
add_polygon(sketch2, [(450, -180), (434, -180), (434, -198), (450, -198)])
add_polygon(sketch2, [(476, -180), (460, -180), (460, -198), (476, -198)])
add_polygon(sketch2, [(502, -180), (486, -180), (486, -198), (502, -198)])
add_polygon(sketch2, [(528, -180), (512, -180), (512, -198), (528, -198)])
sketch2.addConstraint([
    Sketcher.Constraint("Horizontal", 0),
    Sketcher.Constraint("Vertical", 1),
    Sketcher.Constraint("Vertical", 2),
    Sketcher.Constraint("Horizontal", 3),
    Sketcher.Constraint("Vertical", 4),
    Sketcher.Constraint("Vertical", 5),
    Sketcher.Constraint("Vertical", 6),
    Sketcher.Constraint("Horizontal", 7),
    Sketcher.Constraint("Vertical", 8),
    Sketcher.Constraint("Horizontal", 9),
    Sketcher.Constraint("Horizontal", 10),
    Sketcher.Constraint("Vertical", 11),
    Sketcher.Constraint("Horizontal", 12),
    Sketcher.Constraint("Vertical", 13),
    Sketcher.Constraint("Horizontal", 14),
    Sketcher.Constraint("Vertical", 15),
    Sketcher.Constraint("Horizontal", 16),
    Sketcher.Constraint("Vertical", 17),
    Sketcher.Constraint("Horizontal", 18),
    Sketcher.Constraint("Vertical", 19),
    Sketcher.Constraint("Horizontal", 20),
    Sketcher.Constraint("Vertical", 21),
    Sketcher.Constraint("Horizontal", 22),
    Sketcher.Constraint("Vertical", 23),
    Sketcher.Constraint("Horizontal", 24),
    Sketcher.Constraint("Vertical", 25),
    Sketcher.Constraint("Horizontal", 26),
    Sketcher.Constraint("Vertical", 27),
    Sketcher.Constraint("Horizontal", 28),
    Sketcher.Constraint("Vertical", 29),
    Sketcher.Constraint("Horizontal", 30),
    Sketcher.Constraint("Vertical", 31),
    Sketcher.Constraint("Horizontal", 32),
    Sketcher.Constraint("Vertical", 33),
    Sketcher.Constraint("Horizontal", 34),
    Sketcher.Constraint("Vertical", 35),
    Sketcher.Constraint("Horizontal", 36),
    Sketcher.Constraint("Vertical", 37),
    Sketcher.Constraint("Horizontal", 38),
    Sketcher.Constraint("Vertical", 39),
    Sketcher.Constraint("Horizontal", 40),
    Sketcher.Constraint("Vertical", 41),
    Sketcher.Constraint("Horizontal", 42),
    Sketcher.Constraint("Vertical", 43),
    Sketcher.Constraint("Horizontal", 44),
    Sketcher.Constraint("Vertical", 45),
    Sketcher.Constraint("Horizontal", 46),
    Sketcher.Constraint("Vertical", 47),
    Sketcher.Constraint("Horizontal", 48),
    Sketcher.Constraint("Vertical", 49),
    Sketcher.Constraint("Horizontal", 50),
    Sketcher.Constraint("Vertical", 51),
    Sketcher.Constraint("Horizontal", 52),
    Sketcher.Constraint("Vertical", 53),
    Sketcher.Constraint("Horizontal", 54),
    Sketcher.Constraint("Vertical", 55),
    Sketcher.Constraint("Horizontal", 56),
    Sketcher.Constraint("Vertical", 57),
    Sketcher.Constraint("Horizontal", 58),
    Sketcher.Constraint("Vertical", 59),
    Sketcher.Constraint("Horizontal", 60),
    Sketcher.Constraint("Vertical", 61),
    Sketcher.Constraint("Horizontal", 62),
    Sketcher.Constraint("Vertical", 63),
    Sketcher.Constraint("Horizontal", 64),
    Sketcher.Constraint("Vertical", 65),
    Sketcher.Constraint("Horizontal", 66),
    Sketcher.Constraint("Vertical", 67),
    Sketcher.Constraint("Horizontal", 68),
    Sketcher.Constraint("Vertical", 69),
    Sketcher.Constraint("Horizontal", 1, 2, 5, 2),
    Sketcher.Constraint("Horizontal", 9, 2, 10, 2),
    Sketcher.Constraint("Horizontal", 7, 2, 11, 2),
    Sketcher.Constraint("Horizontal", 13, 2, 14, 2),
    Sketcher.Constraint("Horizontal", 12, 2, 15, 2),
    Sketcher.Constraint("Horizontal", 17, 2, 18, 2),
    Sketcher.Constraint("Horizontal", 16, 2, 19, 2),
    Sketcher.Constraint("Horizontal", 21, 2, 22, 2),
    Sketcher.Constraint("Horizontal", 20, 2, 23, 2),
    Sketcher.Constraint("Horizontal", 25, 2, 26, 2),
    Sketcher.Constraint("Horizontal", 24, 2, 27, 2),
    Sketcher.Constraint("Horizontal", 29, 2, 30, 2),
    Sketcher.Constraint("Horizontal", 28, 2, 31, 2),
    Sketcher.Constraint("Horizontal", 33, 2, 34, 2),
    Sketcher.Constraint("Horizontal", 32, 2, 35, 2),
    Sketcher.Constraint("Horizontal", 37, 2, 38, 2),
    Sketcher.Constraint("Horizontal", 36, 2, 39, 2),
    Sketcher.Constraint("Horizontal", 41, 2, 42, 2),
    Sketcher.Constraint("Horizontal", 40, 2, 43, 2),
    Sketcher.Constraint("Horizontal", 45, 2, 46, 2),
    Sketcher.Constraint("Horizontal", 44, 2, 47, 2),
    Sketcher.Constraint("Horizontal", 49, 2, 50, 2),
    Sketcher.Constraint("Horizontal", 48, 2, 51, 2),
    Sketcher.Constraint("Horizontal", 53, 2, 54, 2),
    Sketcher.Constraint("Horizontal", 52, 2, 55, 2),
    Sketcher.Constraint("Horizontal", 57, 2, 58, 2),
    Sketcher.Constraint("Horizontal", 56, 2, 59, 2),
    Sketcher.Constraint("Horizontal", 61, 2, 62, 2),
    Sketcher.Constraint("Horizontal", 60, 2, 63, 2),
    Sketcher.Constraint("Horizontal", 65, 2, 66, 2),
    Sketcher.Constraint("Horizontal", 64, 2, 67, 2),
    Sketcher.Constraint("Equal", 9, 10),
    Sketcher.Constraint("Equal", 12, 14),
    Sketcher.Constraint("Equal", 16, 18),
    Sketcher.Constraint("Equal", 20, 22),
    Sketcher.Constraint("Equal", 24, 26),
    Sketcher.Constraint("Equal", 28, 30),
    Sketcher.Constraint("Equal", 32, 34),
    Sketcher.Constraint("Equal", 36, 38),
    Sketcher.Constraint("Equal", 40, 42),
    Sketcher.Constraint("Equal", 44, 46),
    Sketcher.Constraint("Equal", 48, 50),
    Sketcher.Constraint("Equal", 52, 54),
    Sketcher.Constraint("Equal", 56, 58),
    Sketcher.Constraint("Equal", 60, 62),
    Sketcher.Constraint("Equal", 64, 66),
    Sketcher.Constraint("Equal", 1, 2),
    Sketcher.Constraint("Equal", 5, 6),
    Sketcher.Constraint("DistanceX", 0, 2, 0, 1, Q("420 mm")),
    Sketcher.Constraint("DistanceX", 7, 1, 7, 2, Q("16 mm")),
    Sketcher.Constraint("DistanceY", 4, 2, 4, 1, Q("20.5 mm")),
    Sketcher.Constraint("DistanceY", 8, 1, 8, 2, Q("18.5 mm")),
    Sketcher.Constraint("DistanceY", 0, 2, -1, 1, Q("199 mm")),
    Sketcher.Constraint("DistanceX", -1, 1, 0, 2, Q("115.3694 mm")),
    Sketcher.Constraint("DistanceX", -1, 1, 5, 2, Q("122.3694 mm")),
    Sketcher.Constraint("DistanceX", -1, 1, 10, 2, Q("148.3694 mm")),
    Sketcher.Constraint("DistanceX", -1, 1, 14, 2, Q("174.3694 mm")),
    Sketcher.Constraint("DistanceX", -1, 1, 18, 2, Q("200.3694 mm")),
    Sketcher.Constraint("DistanceX", -1, 1, 22, 2, Q("226.3694 mm")),
    Sketcher.Constraint("DistanceX", -1, 1, 26, 2, Q("252.3694 mm")),
    Sketcher.Constraint("DistanceX", -1, 1, 30, 2, Q("278.3694 mm")),
    Sketcher.Constraint("DistanceX", -1, 1, 34, 2, Q("304.3694 mm")),
    Sketcher.Constraint("DistanceX", -1, 1, 38, 2, Q("330.3694 mm")),
    Sketcher.Constraint("DistanceX", -1, 1, 42, 2, Q("356.3694 mm")),
    Sketcher.Constraint("DistanceX", -1, 1, 46, 2, Q("382.3694 mm")),
    Sketcher.Constraint("DistanceX", -1, 1, 50, 2, Q("408.3694 mm")),
    Sketcher.Constraint("DistanceX", -1, 1, 54, 2, Q("434.3694 mm")),
    Sketcher.Constraint("DistanceX", -1, 1, 58, 2, Q("460.3694 mm")),
    Sketcher.Constraint("DistanceX", -1, 1, 62, 2, Q("486.3694 mm")),
    Sketcher.Constraint("DistanceX", -1, 1, 66, 2, Q("512.3694 mm")),
])
sketch2.setExpression("Constraints[188]", "Params.sketch2_width")
sketch2.setExpression("Constraints[189]", "Params.sketch2_width2")
sketch2.setExpression("Constraints[190]", "Params.sketch2_height")
sketch2.setExpression("Constraints[191]", "Params.sketch2_height2")
pocket1 = body.newObject("PartDesign::Pocket", "Pocket")
pocket1.Profile = sketch2
pocket1.setExpression("Length", "Params.pocket1_length")
pocket1.Reversed = True

sketch3 = body.newObject("Sketcher::SketchObject", "Sketch002")
sketch3.AttachmentSupport = (doc.getObject("XZ_Plane"), [""])
sketch3.MapMode = "FlatFace"
add_polygon(sketch3, [(122, -198), (122, -180), (138, -180), (138, -198)])
add_polygon(sketch3, [(148, -198), (148, -180), (164, -180), (164, -198)])
add_polygon(sketch3, [(174, -198), (174, -180), (190, -180), (190, -198)])
add_polygon(sketch3, [(200, -198), (200, -180), (216, -180), (216, -198)])
add_polygon(sketch3, [(226, -198), (226, -180), (242, -180), (242, -198)])
add_polygon(sketch3, [(252, -198), (252, -180), (268, -180), (268, -198)])
add_polygon(sketch3, [(278, -198), (278, -180), (294, -180), (294, -198)])
add_polygon(sketch3, [(304, -198), (304, -180), (320, -180), (320, -198)])
add_polygon(sketch3, [(330, -198), (330, -180), (346, -180), (346, -198)])
add_polygon(sketch3, [(356, -198), (356, -180), (372, -180), (372, -198)])
add_polygon(sketch3, [(382, -198), (382, -180), (398, -180), (398, -198)])
add_polygon(sketch3, [(408, -198), (408, -180), (424, -180), (424, -198)])
add_polygon(sketch3, [(434, -198), (434, -180), (450, -180), (450, -198)])
add_polygon(sketch3, [(460, -198), (460, -180), (476, -180), (476, -198)])
add_polygon(sketch3, [(486, -198), (486, -180), (502, -180), (502, -198)])
add_polygon(sketch3, [(512, -198), (512, -180), (528, -180), (528, -198)])
sketch3.addConstraint([
    Sketcher.Constraint("Vertical", 0),
    Sketcher.Constraint("Horizontal", 1),
    Sketcher.Constraint("Vertical", 2),
    Sketcher.Constraint("Horizontal", 3),
    Sketcher.Constraint("Vertical", 4),
    Sketcher.Constraint("Horizontal", 5),
    Sketcher.Constraint("Vertical", 6),
    Sketcher.Constraint("Horizontal", 7),
    Sketcher.Constraint("Vertical", 8),
    Sketcher.Constraint("Horizontal", 9),
    Sketcher.Constraint("Vertical", 10),
    Sketcher.Constraint("Horizontal", 11),
    Sketcher.Constraint("Vertical", 12),
    Sketcher.Constraint("Horizontal", 13),
    Sketcher.Constraint("Vertical", 14),
    Sketcher.Constraint("Horizontal", 15),
    Sketcher.Constraint("Vertical", 16),
    Sketcher.Constraint("Horizontal", 17),
    Sketcher.Constraint("Vertical", 18),
    Sketcher.Constraint("Horizontal", 19),
    Sketcher.Constraint("Vertical", 20),
    Sketcher.Constraint("Horizontal", 21),
    Sketcher.Constraint("Vertical", 22),
    Sketcher.Constraint("Horizontal", 23),
    Sketcher.Constraint("Vertical", 24),
    Sketcher.Constraint("Horizontal", 25),
    Sketcher.Constraint("Vertical", 26),
    Sketcher.Constraint("Horizontal", 27),
    Sketcher.Constraint("Vertical", 28),
    Sketcher.Constraint("Horizontal", 29),
    Sketcher.Constraint("Vertical", 30),
    Sketcher.Constraint("Horizontal", 31),
    Sketcher.Constraint("Vertical", 32),
    Sketcher.Constraint("Horizontal", 33),
    Sketcher.Constraint("Vertical", 34),
    Sketcher.Constraint("Horizontal", 35),
    Sketcher.Constraint("Vertical", 36),
    Sketcher.Constraint("Horizontal", 37),
    Sketcher.Constraint("Vertical", 38),
    Sketcher.Constraint("Horizontal", 39),
    Sketcher.Constraint("Vertical", 40),
    Sketcher.Constraint("Horizontal", 41),
    Sketcher.Constraint("Vertical", 42),
    Sketcher.Constraint("Horizontal", 43),
    Sketcher.Constraint("Vertical", 44),
    Sketcher.Constraint("Horizontal", 45),
    Sketcher.Constraint("Vertical", 46),
    Sketcher.Constraint("Horizontal", 47),
    Sketcher.Constraint("Vertical", 48),
    Sketcher.Constraint("Horizontal", 49),
    Sketcher.Constraint("Vertical", 50),
    Sketcher.Constraint("Horizontal", 51),
    Sketcher.Constraint("Vertical", 52),
    Sketcher.Constraint("Horizontal", 53),
    Sketcher.Constraint("Vertical", 54),
    Sketcher.Constraint("Horizontal", 55),
    Sketcher.Constraint("Vertical", 56),
    Sketcher.Constraint("Horizontal", 57),
    Sketcher.Constraint("Vertical", 58),
    Sketcher.Constraint("Horizontal", 59),
    Sketcher.Constraint("Vertical", 60),
    Sketcher.Constraint("Horizontal", 61),
    Sketcher.Constraint("Vertical", 62),
    Sketcher.Constraint("Horizontal", 63),
    Sketcher.Constraint("Horizontal", 1, 2, 4, 2),
    Sketcher.Constraint("Horizontal", 3, 2, 6, 2),
    Sketcher.Constraint("Horizontal", 5, 2, 8, 2),
    Sketcher.Constraint("Horizontal", 7, 2, 10, 2),
    Sketcher.Constraint("Horizontal", 9, 2, 12, 2),
    Sketcher.Constraint("Horizontal", 11, 2, 14, 2),
    Sketcher.Constraint("Horizontal", 13, 2, 16, 2),
    Sketcher.Constraint("Horizontal", 15, 2, 18, 2),
    Sketcher.Constraint("Horizontal", 17, 2, 20, 2),
    Sketcher.Constraint("Horizontal", 19, 2, 22, 2),
    Sketcher.Constraint("Horizontal", 21, 2, 24, 2),
    Sketcher.Constraint("Horizontal", 23, 2, 26, 2),
    Sketcher.Constraint("Horizontal", 25, 2, 28, 2),
    Sketcher.Constraint("Horizontal", 27, 2, 30, 2),
    Sketcher.Constraint("Horizontal", 29, 2, 32, 2),
    Sketcher.Constraint("Horizontal", 31, 2, 34, 2),
    Sketcher.Constraint("Horizontal", 33, 2, 36, 2),
    Sketcher.Constraint("Horizontal", 35, 2, 38, 2),
    Sketcher.Constraint("Horizontal", 37, 2, 40, 2),
    Sketcher.Constraint("Horizontal", 39, 2, 42, 2),
    Sketcher.Constraint("Horizontal", 41, 2, 44, 2),
    Sketcher.Constraint("Horizontal", 43, 2, 46, 2),
    Sketcher.Constraint("Horizontal", 45, 2, 48, 2),
    Sketcher.Constraint("Horizontal", 47, 2, 50, 2),
    Sketcher.Constraint("Horizontal", 49, 2, 52, 2),
    Sketcher.Constraint("Horizontal", 51, 2, 54, 2),
    Sketcher.Constraint("Horizontal", 53, 2, 56, 2),
    Sketcher.Constraint("Horizontal", 55, 2, 58, 2),
    Sketcher.Constraint("Horizontal", 57, 2, 60, 2),
    Sketcher.Constraint("Horizontal", 59, 2, 62, 2),
    Sketcher.Constraint("Equal", 3, 5),
    Sketcher.Constraint("Equal", 7, 9),
    Sketcher.Constraint("Equal", 11, 13),
    Sketcher.Constraint("Equal", 15, 17),
    Sketcher.Constraint("Equal", 19, 21),
    Sketcher.Constraint("Equal", 23, 25),
    Sketcher.Constraint("Equal", 27, 29),
    Sketcher.Constraint("Equal", 31, 33),
    Sketcher.Constraint("Equal", 35, 37),
    Sketcher.Constraint("Equal", 39, 41),
    Sketcher.Constraint("Equal", 43, 45),
    Sketcher.Constraint("Equal", 47, 49),
    Sketcher.Constraint("Equal", 51, 53),
    Sketcher.Constraint("Equal", 55, 57),
    Sketcher.Constraint("Equal", 59, 61),
    Sketcher.Constraint("DistanceX", 1, 1, 1, 2, Q("16 mm")),
    Sketcher.Constraint("DistanceY", 0, 1, 0, 2, Q("18.5 mm")),
    Sketcher.Constraint("DistanceY", 2, 2, -1, 1, Q("198 mm")),
    Sketcher.Constraint("DistanceX", -1, 1, 0, 2, Q("122.3694 mm")),
    Sketcher.Constraint("DistanceX", -1, 1, 4, 2, Q("148.3694 mm")),
    Sketcher.Constraint("DistanceX", -1, 1, 8, 2, Q("174.3694 mm")),
    Sketcher.Constraint("DistanceX", -1, 1, 12, 2, Q("200.3694 mm")),
    Sketcher.Constraint("DistanceX", -1, 1, 16, 2, Q("226.3694 mm")),
    Sketcher.Constraint("DistanceX", -1, 1, 20, 2, Q("252.3694 mm")),
    Sketcher.Constraint("DistanceX", -1, 1, 24, 2, Q("278.3694 mm")),
    Sketcher.Constraint("DistanceX", -1, 1, 28, 2, Q("304.3694 mm")),
    Sketcher.Constraint("DistanceX", -1, 1, 32, 2, Q("330.3694 mm")),
    Sketcher.Constraint("DistanceX", -1, 1, 36, 2, Q("356.3694 mm")),
    Sketcher.Constraint("DistanceX", -1, 1, 40, 2, Q("382.3694 mm")),
    Sketcher.Constraint("DistanceX", -1, 1, 44, 2, Q("408.3694 mm")),
    Sketcher.Constraint("DistanceX", -1, 1, 48, 2, Q("434.3694 mm")),
    Sketcher.Constraint("DistanceX", -1, 1, 52, 2, Q("460.3694 mm")),
    Sketcher.Constraint("DistanceX", -1, 1, 56, 2, Q("486.3694 mm")),
    Sketcher.Constraint("DistanceX", -1, 1, 60, 2, Q("512.3694 mm")),
])
sketch3.setExpression("Constraints[173]", "Params.sketch3_width")
sketch3.setExpression("Constraints[174]", "Params.sketch3_height")
pocket2 = body.newObject("PartDesign::Pocket", "Pocket001")
pocket2.Profile = sketch3
pocket2.setExpression("Length", "Params.pocket2_length")
pocket2.Reversed = True

doc.recompute()
